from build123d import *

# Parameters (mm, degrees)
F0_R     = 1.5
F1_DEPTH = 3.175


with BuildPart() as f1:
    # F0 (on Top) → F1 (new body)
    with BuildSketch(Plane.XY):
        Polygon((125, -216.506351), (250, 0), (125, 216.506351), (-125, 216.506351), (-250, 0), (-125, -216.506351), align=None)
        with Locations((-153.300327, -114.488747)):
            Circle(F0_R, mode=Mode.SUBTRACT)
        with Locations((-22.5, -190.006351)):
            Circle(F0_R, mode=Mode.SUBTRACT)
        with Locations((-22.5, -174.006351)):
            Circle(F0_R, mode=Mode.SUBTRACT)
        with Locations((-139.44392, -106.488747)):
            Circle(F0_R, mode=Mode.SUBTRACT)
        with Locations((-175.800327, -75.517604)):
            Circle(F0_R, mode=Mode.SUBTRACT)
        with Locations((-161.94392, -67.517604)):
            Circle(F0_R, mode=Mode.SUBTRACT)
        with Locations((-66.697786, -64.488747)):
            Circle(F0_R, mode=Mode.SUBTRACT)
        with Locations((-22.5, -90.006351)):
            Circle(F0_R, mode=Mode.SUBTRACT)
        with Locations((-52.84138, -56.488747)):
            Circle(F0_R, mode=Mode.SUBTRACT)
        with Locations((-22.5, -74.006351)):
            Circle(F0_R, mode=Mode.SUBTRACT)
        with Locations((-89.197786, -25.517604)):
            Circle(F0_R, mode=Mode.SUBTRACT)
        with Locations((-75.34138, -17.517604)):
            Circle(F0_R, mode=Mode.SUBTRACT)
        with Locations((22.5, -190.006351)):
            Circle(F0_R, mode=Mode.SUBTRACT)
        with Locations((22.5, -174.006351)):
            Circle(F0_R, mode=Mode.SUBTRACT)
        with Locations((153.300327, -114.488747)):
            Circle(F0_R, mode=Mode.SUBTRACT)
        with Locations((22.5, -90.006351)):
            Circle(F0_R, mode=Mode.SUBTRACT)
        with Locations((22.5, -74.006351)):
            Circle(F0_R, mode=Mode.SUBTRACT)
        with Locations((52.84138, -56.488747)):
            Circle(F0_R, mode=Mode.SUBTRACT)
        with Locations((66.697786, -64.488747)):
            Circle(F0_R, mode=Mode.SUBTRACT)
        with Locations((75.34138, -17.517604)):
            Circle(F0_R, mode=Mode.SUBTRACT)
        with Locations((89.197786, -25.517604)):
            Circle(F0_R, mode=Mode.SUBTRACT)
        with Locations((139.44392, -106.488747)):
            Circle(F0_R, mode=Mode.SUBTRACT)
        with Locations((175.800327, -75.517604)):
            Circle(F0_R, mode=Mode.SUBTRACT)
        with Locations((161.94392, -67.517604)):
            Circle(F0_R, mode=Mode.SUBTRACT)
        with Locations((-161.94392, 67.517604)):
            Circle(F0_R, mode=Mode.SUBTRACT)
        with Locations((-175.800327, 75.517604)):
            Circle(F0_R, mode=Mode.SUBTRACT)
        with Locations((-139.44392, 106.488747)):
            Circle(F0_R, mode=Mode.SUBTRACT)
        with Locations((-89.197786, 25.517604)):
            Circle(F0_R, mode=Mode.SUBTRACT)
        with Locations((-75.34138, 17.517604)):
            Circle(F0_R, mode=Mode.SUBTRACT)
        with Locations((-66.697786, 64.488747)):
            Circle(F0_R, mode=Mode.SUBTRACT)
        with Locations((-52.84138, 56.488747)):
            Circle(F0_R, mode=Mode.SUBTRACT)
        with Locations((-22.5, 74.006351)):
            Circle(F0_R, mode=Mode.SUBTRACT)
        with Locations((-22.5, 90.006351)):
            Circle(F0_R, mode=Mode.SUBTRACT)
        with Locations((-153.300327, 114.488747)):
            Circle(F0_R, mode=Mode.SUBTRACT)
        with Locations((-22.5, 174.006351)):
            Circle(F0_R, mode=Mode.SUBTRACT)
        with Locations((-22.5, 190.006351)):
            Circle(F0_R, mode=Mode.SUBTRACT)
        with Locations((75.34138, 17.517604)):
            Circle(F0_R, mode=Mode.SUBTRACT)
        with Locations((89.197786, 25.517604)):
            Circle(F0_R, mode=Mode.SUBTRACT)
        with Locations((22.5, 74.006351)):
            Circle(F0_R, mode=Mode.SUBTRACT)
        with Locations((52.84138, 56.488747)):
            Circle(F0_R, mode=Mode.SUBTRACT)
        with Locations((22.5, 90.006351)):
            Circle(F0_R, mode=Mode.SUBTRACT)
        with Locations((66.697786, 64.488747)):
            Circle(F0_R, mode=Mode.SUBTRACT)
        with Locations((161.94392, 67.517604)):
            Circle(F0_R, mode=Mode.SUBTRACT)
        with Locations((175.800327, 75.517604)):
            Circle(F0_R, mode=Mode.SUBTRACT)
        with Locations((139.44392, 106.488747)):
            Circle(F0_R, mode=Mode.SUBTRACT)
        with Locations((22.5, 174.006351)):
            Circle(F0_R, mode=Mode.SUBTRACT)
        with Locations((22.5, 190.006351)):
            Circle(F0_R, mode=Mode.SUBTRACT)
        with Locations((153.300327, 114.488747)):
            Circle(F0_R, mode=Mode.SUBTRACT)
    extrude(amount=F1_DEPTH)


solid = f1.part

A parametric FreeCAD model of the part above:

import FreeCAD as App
import Part
import Sketcher
Q = App.Units.Quantity


def add_polygon(sketch, points):
    """Adds a closed chain of lines whose ends are joined by coincident constraints."""
    first, n = sketch.GeometryCount, len(points)
    for a, b in zip(points, points[1:] + points[:1]):
        sketch.addGeometry(Part.LineSegment(App.Vector(*a, 0), App.Vector(*b, 0)), False)
    for i in range(n):
        sketch.addConstraint(Sketcher.Constraint("Coincident", first + i, 2, first + (i + 1) % n, 1))

doc = App.newDocument("Part")
params = doc.addObject("Spreadsheet::Sheet", "Params")
for row, (alias, value) in enumerate([
    ("sketch1_diameter", "3 mm"),
    ("sketch1_width", "250 mm"),
    ("sketch1_length", "250 mm"),
    ("pad1_length", "3.175 mm"),
], start=1):
    params.set(f"A{row}", alias)
    params.set(f"B{row}", "=" + value)
    params.setAlias(f"B{row}", alias)

body = doc.addObject("PartDesign::Body", "Body")

# Sketch on XY plane
sketch1 = body.newObject("Sketcher::SketchObject", "Sketch")
sketch1.AttachmentSupport = (doc.getObject("XY_Plane"), [""])
sketch1.MapMode = "FlatFace"
add_polygon(sketch1, [(125, -216.5), (250, 0), (125, 216.5), (-125, 216.5), (-250, 0), (-125, -216.5)])  # lines 0-5
sketch1.addGeometry(Part.Circle(App.Vector(-153.3, -114.5, 0), App.Vector(0, 0, 1), 1.5), False)  # 6
sketch1.addGeometry(Part.Circle(App.Vector(-139.4, -106.5, 0), App.Vector(0, 0, 1), 1.5), False)  # 7
sketch1.addGeometry(Part.Circle(App.Vector(-22.5, -190, 0), App.Vector(0, 0, 1), 1.5), False)  # 8
sketch1.addGeometry(Part.Circle(App.Vector(-22.5, -174, 0), App.Vector(0, 0, 1), 1.5), False)  # 9
sketch1.addGeometry(Part.Circle(App.Vector(-175.8, -75.5, 0), App.Vector(0, 0, 1), 1.5), False)  # 10
sketch1.addGeometry(Part.Circle(App.Vector(-161.9, -67.5, 0), App.Vector(0, 0, 1), 1.5), False)  # 11
sketch1.addGeometry(Part.Circle(App.Vector(-89.2, -25.5, 0), App.Vector(0, 0, 1), 1.5), False)  # 12
sketch1.addGeometry(Part.Circle(App.Vector(-66.7, -64.5, 0), App.Vector(0, 0, 1), 1.5), False)  # 13
sketch1.addGeometry(Part.Circle(App.Vector(-52.8, -56.5, 0), App.Vector(0, 0, 1), 1.5), False)  # 14
sketch1.addGeometry(Part.Circle(App.Vector(-22.5, -90, 0), App.Vector(0, 0, 1), 1.5), False)  # 15
sketch1.addGeometry(Part.Circle(App.Vector(-22.5, -74, 0), App.Vector(0, 0, 1), 1.5), False)  # 16
sketch1.addGeometry(Part.Circle(App.Vector(-75.3, -17.5, 0), App.Vector(0, 0, 1), 1.5), False)  # 17
sketch1.addGeometry(Part.Circle(App.Vector(22.5, -190, 0), App.Vector(0, 0, 1), 1.5), False)  # 18
sketch1.addGeometry(Part.Circle(App.Vector(22.5, -174, 0), App.Vector(0, 0, 1), 1.5), False)  # 19
sketch1.addGeometry(Part.Circle(App.Vector(153.3, -114.5, 0), App.Vector(0, 0, 1), 1.5), False)  # 20
sketch1.addGeometry(Part.Circle(App.Vector(139.4, -106.5, 0), App.Vector(0, 0, 1), 1.5), False)  # 21
sketch1.addGeometry(Part.Circle(App.Vector(22.5, -90, 0), App.Vector(0, 0, 1), 1.5), False)  # 22
sketch1.addGeometry(Part.Circle(App.Vector(22.5, -74, 0), App.Vector(0, 0, 1), 1.5), False)  # 23
sketch1.addGeometry(Part.Circle(App.Vector(52.8, -56.5, 0), App.Vector(0, 0, 1), 1.5), False)  # 24
sketch1.addGeometry(Part.Circle(App.Vector(66.7, -64.5, 0), App.Vector(0, 0, 1), 1.5), False)  # 25
sketch1.addGeometry(Part.Circle(App.Vector(75.3, -17.5, 0), App.Vector(0, 0, 1), 1.5), False)  # 26
sketch1.addGeometry(Part.Circle(App.Vector(175.8, -75.5, 0), App.Vector(0, 0, 1), 1.5), False)  # 27
sketch1.addGeometry(Part.Circle(App.Vector(161.9, -67.5, 0), App.Vector(0, 0, 1), 1.5), False)  # 28
sketch1.addGeometry(Part.Circle(App.Vector(89.2, -25.5, 0), App.Vector(0, 0, 1), 1.5), False)  # 29
sketch1.addGeometry(Part.Circle(App.Vector(-89.2, 25.5, 0), App.Vector(0, 0, 1), 1.5), False)  # 30
sketch1.addGeometry(Part.Circle(App.Vector(-161.9, 67.5, 0), App.Vector(0, 0, 1), 1.5), False)  # 31
sketch1.addGeometry(Part.Circle(App.Vector(-175.8, 75.5, 0), App.Vector(0, 0, 1), 1.5), False)  # 32
sketch1.addGeometry(Part.Circle(App.Vector(-75.3, 17.5, 0), App.Vector(0, 0, 1), 1.5), False)  # 33
sketch1.addGeometry(Part.Circle(App.Vector(-66.7, 64.5, 0), App.Vector(0, 0, 1), 1.5), False)  # 34
sketch1.addGeometry(Part.Circle(App.Vector(-52.8, 56.5, 0), App.Vector(0, 0, 1), 1.5), False)  # 35
sketch1.addGeometry(Part.Circle(App.Vector(-22.5, 74, 0), App.Vector(0, 0, 1), 1.5), False)  # 36
sketch1.addGeometry(Part.Circle(App.Vector(-22.5, 90, 0), App.Vector(0, 0, 1), 1.5), False)  # 37
sketch1.addGeometry(Part.Circle(App.Vector(-139.4, 106.5, 0), App.Vector(0, 0, 1), 1.5), False)  # 38
sketch1.addGeometry(Part.Circle(App.Vector(-153.3, 114.5, 0), App.Vector(0, 0, 1), 1.5), False)  # 39
sketch1.addGeometry(Part.Circle(App.Vector(-22.5, 174, 0), App.Vector(0, 0, 1), 1.5), False)  # 40
sketch1.addGeometry(Part.Circle(App.Vector(-22.5, 190, 0), App.Vector(0, 0, 1), 1.5), False)  # 41
sketch1.addGeometry(Part.Circle(App.Vector(75.3, 17.5, 0), App.Vector(0, 0, 1), 1.5), False)  # 42
sketch1.addGeometry(Part.Circle(App.Vector(22.5, 74, 0), App.Vector(0, 0, 1), 1.5), False)  # 43
sketch1.addGeometry(Part.Circle(App.Vector(22.5, 90, 0), App.Vector(0, 0, 1), 1.5), False)  # 44
sketch1.addGeometry(Part.Circle(App.Vector(52.8, 56.5, 0), App.Vector(0, 0, 1), 1.5), False)  # 45
sketch1.addGeometry(Part.Circle(App.Vector(66.7, 64.5, 0), App.Vector(0, 0, 1), 1.5), False)  # 46
sketch1.addGeometry(Part.Circle(App.Vector(89.2, 25.5, 0), App.Vector(0, 0, 1), 1.5), False)  # 47
sketch1.addGeometry(Part.Circle(App.Vector(161.9, 67.5, 0), App.Vector(0, 0, 1), 1.5), False)  # 48
sketch1.addGeometry(Part.Circle(App.Vector(175.8, 75.5, 0), App.Vector(0, 0, 1), 1.5), False)  # 49
sketch1.addGeometry(Part.Circle(App.Vector(22.5, 174, 0), App.Vector(0, 0, 1), 1.5), False)  # 50
sketch1.addGeometry(Part.Circle(App.Vector(22.5, 190, 0), App.Vector(0, 0, 1), 1.5), False)  # 51
sketch1.addGeometry(Part.Circle(App.Vector(139.4, 106.5, 0), App.Vector(0, 0, 1), 1.5), False)  # 52
sketch1.addGeometry(Part.Circle(App.Vector(153.3, 114.5, 0), App.Vector(0, 0, 1), 1.5), False)  # 53
sketch1.addConstraint([
    Sketcher.Constraint("Horizontal", 2),
    Sketcher.Constraint("Horizontal", 5),
    Sketcher.Constraint("Equal", 6, 7),
    Sketcher.Constraint("Equal", 7, 8),
    Sketcher.Constraint("Equal", 8, 9),
    Sketcher.Constraint("Equal", 9, 10),
    Sketcher.Constraint("Equal", 10, 11),
    Sketcher.Constraint("Equal", 11, 12),
    Sketcher.Constraint("Equal", 12, 13),
    Sketcher.Constraint("Equal", 13, 14),
    Sketcher.Constraint("Equal", 14, 15),
    Sketcher.Constraint("Equal", 15, 16),
    Sketcher.Constraint("Equal", 16, 17),
    Sketcher.Constraint("Equal", 17, 18),
    Sketcher.Constraint("Equal", 18, 19),
    Sketcher.Constraint("Equal", 19, 20),
    Sketcher.Constraint("Equal", 20, 21),
    Sketcher.Constraint("Equal", 21, 22),
    Sketcher.Constraint("Equal", 22, 23),
    Sketcher.Constraint("Equal", 23, 24),
    Sketcher.Constraint("Equal", 24, 25),
    Sketcher.Constraint("Equal", 25, 26),
    Sketcher.Constraint("Equal", 26, 27),
    Sketcher.Constraint("Equal", 27, 28),
    Sketcher.Constraint("Equal", 28, 29),
    Sketcher.Constraint("Equal", 29, 30),
    Sketcher.Constraint("Equal", 30, 31),
    Sketcher.Constraint("Equal", 31, 32),
    Sketcher.Constraint("Equal", 32, 33),
    Sketcher.Constraint("Equal", 33, 34),
    Sketcher.Constraint("Equal", 34, 35),
    Sketcher.Constraint("Equal", 35, 36),
    Sketcher.Constraint("Equal", 36, 37),
    Sketcher.Constraint("Equal", 37, 38),
    Sketcher.Constraint("Equal", 38, 39),
    Sketcher.Constraint("Equal", 39, 40),
    Sketcher.Constraint("Equal", 40, 41),
    Sketcher.Constraint("Equal", 41, 42),
    Sketcher.Constraint("Equal", 42, 43),
    Sketcher.Constraint("Equal", 43, 44),
    Sketcher.Constraint("Equal", 44, 45),
    Sketcher.Constraint("Equal", 45, 46),
    Sketcher.Constraint("Equal", 46, 47),
    Sketcher.Constraint("Equal", 47, 48),
    Sketcher.Constraint("Equal", 48, 49),
    Sketcher.Constraint("Equal", 49, 50),
    Sketcher.Constraint("Equal", 50, 51),
    Sketcher.Constraint("Equal", 51, 52),
    Sketcher.Constraint("Equal", 52, 53),
    Sketcher.Constraint("Symmetric", 29, 3, 30, 3, -1, 1),
    Sketcher.Constraint("Symmetric", 28, 3, 31, 3, -1, 1),
    Sketcher.Constraint("Symmetric", 27, 3, 32, 3, -1, 1),
    Sketcher.Constraint("Symmetric", 26, 3, 33, 3, -1, 1),
    Sketcher.Constraint("Symmetric", 25, 3, 34, 3, -1, 1),
    Sketcher.Constraint("Symmetric", 24, 3, 35, 3, -1, 1),
    Sketcher.Constraint("Symmetric", 23, 3, 36, 3, -1, 1),
    Sketcher.Constraint("Symmetric", 22, 3, 37, 3, -1, 1),
    Sketcher.Constraint("Symmetric", 21, 3, 38, 3, -1, 1),
    Sketcher.Constraint("Symmetric", 20, 3, 39, 3, -1, 1),
    Sketcher.Constraint("Symmetric", 19, 3, 40, 3, -1, 1),
    Sketcher.Constraint("Symmetric", 18, 3, 41, 3, -1, 1),
    Sketcher.Constraint("Symmetric", 17, 3, 42, 3, -1, 1),
    Sketcher.Constraint("Symmetric", 16, 3, 43, 3, -1, 1),
    Sketcher.Constraint("Symmetric", 15, 3, 44, 3, -1, 1),
    Sketcher.Constraint("Symmetric", 14, 3, 45, 3, -1, 1),
    Sketcher.Constraint("Symmetric", 13, 3, 46, 3, -1, 1),
    Sketcher.Constraint("Symmetric", 12, 3, 47, 3, -1, 1),
    Sketcher.Constraint("Symmetric", 11, 3, 48, 3, -1, 1),
    Sketcher.Constraint("Symmetric", 10, 3, 49, 3, -1, 1),
    Sketcher.Constraint("Symmetric", 9, 3, 50, 3, -1, 1),
    Sketcher.Constraint("Symmetric", 8, 3, 51, 3, -1, 1),
    Sketcher.Constraint("Symmetric", 7, 3, 52, 3, -1, 1),
    Sketcher.Constraint("Symmetric", 6, 3, 53, 3, -1, 1),
    Sketcher.Constraint("Symmetric", 0, 2, 3, 2, -1, 1),
    Sketcher.Constraint("Symmetric", 1, 2, 4, 2, -1, 1),
    Sketcher.Constraint("Symmetric", 8, 3, 18, 3, -2),
    Sketcher.Constraint("Symmetric", 9, 3, 19, 3, -2),
    Sketcher.Constraint("Symmetric", 6, 3, 20, 3, -2),
    Sketcher.Constraint("Symmetric", 7, 3, 21, 3, -2),
    Sketcher.Constraint("Symmetric", 15, 3, 22, 3, -2),
    Sketcher.Constraint("Symmetric", 16, 3, 23, 3, -2),
    Sketcher.Constraint("Symmetric", 14, 3, 24, 3, -2),
    Sketcher.Constraint("Symmetric", 13, 3, 25, 3, -2),
    Sketcher.Constraint("Symmetric", 17, 3, 26, 3, -2),
    Sketcher.Constraint("Symmetric", 10, 3, 27, 3, -2),
    Sketcher.Constraint("Symmetric", 11, 3, 28, 3, -2),
    Sketcher.Constraint("Symmetric", 12, 3, 29, 3, -2),
    Sketcher.Constraint("PointOnObject", 0, 2, -1),
    Sketcher.Constraint("Parallel", 0, 3),
    Sketcher.Constraint("Vertical", 8, 3, 9, 3),
    Sketcher.Constraint("Vertical", 9, 3, 15, 3),
    Sketcher.Constraint("Vertical", 15, 3, 16, 3),
    Sketcher.Constraint("Vertical", 2, 2, 4, 2),
    Sketcher.Constraint("Diameter", 6, 3.0),
    Sketcher.Constraint("DistanceX", 2, 2, 2, 1, 250.0),
    Sketcher.Constraint("Angle", 0, Q("60 deg")),
    Sketcher.Constraint("Distance", 0, 250.0),
    Sketcher.Constraint("DistanceY", 6, 3, 7, 3, 8.0),
    Sketcher.Constraint("DistanceY", 8, 3, 9, 3, 16.0),
    Sketcher.Constraint("DistanceY", 10, 3, 11, 3, 8.0),
    Sketcher.Constraint("DistanceY", 11, 3, 12, 3, 42.0),
    Sketcher.Constraint("DistanceY", 7, 3, 13, 3, 42.0),
    Sketcher.Constraint("DistanceY", 13, 3, 14, 3, 8.0),
    Sketcher.Constraint("DistanceY", 9, 3, 15, 3, 84.0),
    Sketcher.Constraint("DistanceY", 15, 3, 16, 3, 16.0),
    Sketcher.Constraint("DistanceY", 12, 3, 17, 3, 8.0),
    Sketcher.Constraint("DistanceX", 8, 3, 18, 3, 45.0),
    Sketcher.Constraint("DistanceX", 10, 3, 6, 3, 22.5),
    Sketcher.Constraint("DistanceX", 11, 3, 7, 3, 22.5),
    Sketcher.Constraint("DistanceX", 12, 3, 13, 3, 22.5),
    Sketcher.Constraint("DistanceX", 17, 3, 14, 3, 22.5),
    Sketcher.Constraint("DistanceY", 51, 3, 1, 2, 26.5),
    Sketcher.Constraint("DistanceX", 7, 3, -1, 1, 139.44392),
    Sketcher.Constraint("DistanceX", 14, 3, -1, 1, 52.84138),
    Sketcher.Constraint("DistanceX", 10, 3, 12, 3, 86.602541),
    Sketcher.Constraint("DistanceY", 14, 3, 30, 3, 82.006351),
    Sketcher.Constraint("DistanceY", 11, 3, 30, 3, 93.035208),
    Sketcher.Constraint("DistanceX", 6, 3, -1, 1, 153.300327),
])
sketch1.setExpression("Constraints[99]", "Params.sketch1_diameter")
sketch1.setExpression("Constraints[100]", "Params.sketch1_width")
sketch1.setExpression("Constraints[102]", "Params.sketch1_length")
pad1 = body.newObject("PartDesign::Pad", "Pad")
pad1.Profile = sketch1
pad1.setExpression("Length", "Params.pad1_length")

doc.recompute()
